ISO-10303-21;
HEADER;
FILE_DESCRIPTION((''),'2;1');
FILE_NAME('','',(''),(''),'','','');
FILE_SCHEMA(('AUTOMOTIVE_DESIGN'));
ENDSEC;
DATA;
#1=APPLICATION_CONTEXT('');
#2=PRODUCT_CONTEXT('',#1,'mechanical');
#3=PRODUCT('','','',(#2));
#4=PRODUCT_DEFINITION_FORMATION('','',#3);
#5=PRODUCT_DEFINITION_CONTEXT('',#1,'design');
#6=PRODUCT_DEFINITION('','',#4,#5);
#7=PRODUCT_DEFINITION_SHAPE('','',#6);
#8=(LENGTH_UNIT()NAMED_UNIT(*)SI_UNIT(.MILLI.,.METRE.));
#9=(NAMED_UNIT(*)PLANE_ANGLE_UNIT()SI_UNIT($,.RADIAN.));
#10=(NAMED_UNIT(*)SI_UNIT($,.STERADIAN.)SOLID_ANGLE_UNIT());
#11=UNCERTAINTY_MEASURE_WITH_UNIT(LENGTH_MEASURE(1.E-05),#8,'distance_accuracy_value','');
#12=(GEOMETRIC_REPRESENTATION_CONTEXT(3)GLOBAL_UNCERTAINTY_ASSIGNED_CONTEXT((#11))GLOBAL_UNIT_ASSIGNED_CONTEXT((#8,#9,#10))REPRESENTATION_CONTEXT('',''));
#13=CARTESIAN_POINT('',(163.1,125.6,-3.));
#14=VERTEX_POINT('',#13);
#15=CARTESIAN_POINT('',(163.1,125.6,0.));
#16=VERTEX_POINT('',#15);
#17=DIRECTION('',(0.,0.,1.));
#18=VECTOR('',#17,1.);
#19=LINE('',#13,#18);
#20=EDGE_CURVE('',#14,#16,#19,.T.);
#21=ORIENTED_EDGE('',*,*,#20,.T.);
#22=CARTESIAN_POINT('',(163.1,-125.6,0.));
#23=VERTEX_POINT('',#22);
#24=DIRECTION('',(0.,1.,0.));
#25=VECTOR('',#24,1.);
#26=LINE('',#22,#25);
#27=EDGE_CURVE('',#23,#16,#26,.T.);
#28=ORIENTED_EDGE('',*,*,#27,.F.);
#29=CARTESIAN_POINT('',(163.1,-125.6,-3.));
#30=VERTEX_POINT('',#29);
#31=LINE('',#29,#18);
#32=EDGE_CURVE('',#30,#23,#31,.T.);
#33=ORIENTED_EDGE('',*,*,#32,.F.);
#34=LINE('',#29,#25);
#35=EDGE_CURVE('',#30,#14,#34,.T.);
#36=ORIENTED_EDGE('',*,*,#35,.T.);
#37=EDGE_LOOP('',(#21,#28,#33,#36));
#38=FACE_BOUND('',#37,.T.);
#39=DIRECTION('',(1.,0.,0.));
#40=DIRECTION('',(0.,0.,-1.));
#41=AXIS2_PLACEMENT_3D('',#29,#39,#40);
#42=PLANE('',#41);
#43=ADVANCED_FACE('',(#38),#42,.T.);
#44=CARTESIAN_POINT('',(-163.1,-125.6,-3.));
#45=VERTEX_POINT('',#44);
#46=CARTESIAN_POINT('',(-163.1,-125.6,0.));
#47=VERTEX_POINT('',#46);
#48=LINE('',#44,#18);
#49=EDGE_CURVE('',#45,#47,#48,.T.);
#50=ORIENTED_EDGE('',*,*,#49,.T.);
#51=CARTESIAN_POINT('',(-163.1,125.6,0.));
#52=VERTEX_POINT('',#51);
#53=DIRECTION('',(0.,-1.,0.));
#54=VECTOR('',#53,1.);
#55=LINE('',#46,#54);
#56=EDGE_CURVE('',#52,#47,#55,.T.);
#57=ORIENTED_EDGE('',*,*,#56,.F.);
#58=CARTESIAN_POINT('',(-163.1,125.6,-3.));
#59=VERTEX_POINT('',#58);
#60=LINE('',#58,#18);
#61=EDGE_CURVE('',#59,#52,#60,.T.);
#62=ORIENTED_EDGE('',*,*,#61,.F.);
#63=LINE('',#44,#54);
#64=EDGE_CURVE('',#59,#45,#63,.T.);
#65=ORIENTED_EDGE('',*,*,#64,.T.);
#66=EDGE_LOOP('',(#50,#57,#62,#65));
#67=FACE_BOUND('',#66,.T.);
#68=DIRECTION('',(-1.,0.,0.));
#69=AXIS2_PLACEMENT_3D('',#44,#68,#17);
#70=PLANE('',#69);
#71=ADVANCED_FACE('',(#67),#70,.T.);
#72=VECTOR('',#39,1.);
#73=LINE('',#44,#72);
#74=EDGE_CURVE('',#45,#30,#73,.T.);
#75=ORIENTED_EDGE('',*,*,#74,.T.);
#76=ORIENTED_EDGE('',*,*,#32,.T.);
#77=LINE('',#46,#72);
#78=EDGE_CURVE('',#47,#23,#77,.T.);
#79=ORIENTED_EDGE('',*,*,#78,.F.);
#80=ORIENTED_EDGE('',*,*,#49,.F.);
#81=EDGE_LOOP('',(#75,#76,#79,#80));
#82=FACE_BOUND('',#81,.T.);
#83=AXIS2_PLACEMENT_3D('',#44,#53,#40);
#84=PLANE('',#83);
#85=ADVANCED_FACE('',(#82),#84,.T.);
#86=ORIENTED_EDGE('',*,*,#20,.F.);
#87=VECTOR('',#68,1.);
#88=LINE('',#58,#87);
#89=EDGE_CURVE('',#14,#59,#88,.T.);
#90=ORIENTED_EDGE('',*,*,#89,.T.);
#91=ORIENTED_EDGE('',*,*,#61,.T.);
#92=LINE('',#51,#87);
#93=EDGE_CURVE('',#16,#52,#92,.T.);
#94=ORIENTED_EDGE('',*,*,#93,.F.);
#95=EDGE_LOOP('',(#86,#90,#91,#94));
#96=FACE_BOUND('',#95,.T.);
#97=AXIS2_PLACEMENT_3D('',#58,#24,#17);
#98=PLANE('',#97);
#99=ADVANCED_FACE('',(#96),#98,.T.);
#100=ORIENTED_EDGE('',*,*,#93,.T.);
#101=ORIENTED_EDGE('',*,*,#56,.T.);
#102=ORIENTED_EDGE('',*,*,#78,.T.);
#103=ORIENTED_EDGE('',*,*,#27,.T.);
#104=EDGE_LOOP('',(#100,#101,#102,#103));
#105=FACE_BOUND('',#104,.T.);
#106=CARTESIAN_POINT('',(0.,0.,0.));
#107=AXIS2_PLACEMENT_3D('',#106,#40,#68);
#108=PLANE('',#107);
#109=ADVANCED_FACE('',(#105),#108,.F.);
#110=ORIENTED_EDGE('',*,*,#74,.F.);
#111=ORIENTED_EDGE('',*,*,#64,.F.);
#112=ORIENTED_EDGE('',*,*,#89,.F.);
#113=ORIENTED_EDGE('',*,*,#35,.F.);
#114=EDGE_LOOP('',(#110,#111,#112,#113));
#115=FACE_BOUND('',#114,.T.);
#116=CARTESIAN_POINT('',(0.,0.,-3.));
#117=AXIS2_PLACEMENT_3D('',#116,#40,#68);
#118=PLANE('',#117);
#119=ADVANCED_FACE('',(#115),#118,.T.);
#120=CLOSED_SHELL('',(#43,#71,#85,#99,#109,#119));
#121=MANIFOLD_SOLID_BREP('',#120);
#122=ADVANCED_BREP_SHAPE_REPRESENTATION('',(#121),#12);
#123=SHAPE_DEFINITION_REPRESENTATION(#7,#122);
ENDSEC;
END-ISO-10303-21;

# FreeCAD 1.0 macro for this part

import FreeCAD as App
import Part
import Sketcher
Q = App.Units.Quantity


def add_polygon(sketch, points):
    """Adds a closed chain of lines whose ends are joined by coincident constraints."""
    first, n = sketch.GeometryCount, len(points)
    for a, b in zip(points, points[1:] + points[:1]):
        sketch.addGeometry(Part.LineSegment(App.Vector(*a, 0), App.Vector(*b, 0)), False)
    for i in range(n):
        sketch.addConstraint(Sketcher.Constraint("Coincident", first + i, 2, first + (i + 1) % n, 1))

doc = App.newDocument("Part")
body = doc.addObject("PartDesign::Body", "Body")

# Sketch on XY plane
sketch1 = body.newObject("Sketcher::SketchObject", "Sketch")
sketch1.AttachmentSupport = (doc.getObject("XY_Plane"), [""])
sketch1.MapMode = "FlatFace"
add_polygon(sketch1, [(-163.1, 125.6), (-163.1, -125.6), (163.1, -125.6), (163.1, 125.6)])  # lines 0-3
sketch1.addConstraint(Sketcher.Constraint("Vertical", 0))
sketch1.addConstraint(Sketcher.Constraint("Horizontal", 1))
sketch1.addConstraint(Sketcher.Constraint("Vertical", 2))
sketch1.addConstraint(Sketcher.Constraint("Horizontal", 3))
sketch1.addConstraint(Sketcher.Constraint("Symmetric", 0, 2, 2, 2, -1, 1))
sketch1.addConstraint(Sketcher.Constraint("DistanceX", 1, 1, 1, 2, Q("326.2 mm")))
sketch1.addConstraint(Sketcher.Constraint("DistanceY", 0, 2, 0, 1, Q("251.2 mm")))
pad1 = body.newObject("PartDesign::Pad", "Pad")
pad1.Profile = sketch1
pad1.Length = 3
pad1.Reversed = True

doc.recompute()
